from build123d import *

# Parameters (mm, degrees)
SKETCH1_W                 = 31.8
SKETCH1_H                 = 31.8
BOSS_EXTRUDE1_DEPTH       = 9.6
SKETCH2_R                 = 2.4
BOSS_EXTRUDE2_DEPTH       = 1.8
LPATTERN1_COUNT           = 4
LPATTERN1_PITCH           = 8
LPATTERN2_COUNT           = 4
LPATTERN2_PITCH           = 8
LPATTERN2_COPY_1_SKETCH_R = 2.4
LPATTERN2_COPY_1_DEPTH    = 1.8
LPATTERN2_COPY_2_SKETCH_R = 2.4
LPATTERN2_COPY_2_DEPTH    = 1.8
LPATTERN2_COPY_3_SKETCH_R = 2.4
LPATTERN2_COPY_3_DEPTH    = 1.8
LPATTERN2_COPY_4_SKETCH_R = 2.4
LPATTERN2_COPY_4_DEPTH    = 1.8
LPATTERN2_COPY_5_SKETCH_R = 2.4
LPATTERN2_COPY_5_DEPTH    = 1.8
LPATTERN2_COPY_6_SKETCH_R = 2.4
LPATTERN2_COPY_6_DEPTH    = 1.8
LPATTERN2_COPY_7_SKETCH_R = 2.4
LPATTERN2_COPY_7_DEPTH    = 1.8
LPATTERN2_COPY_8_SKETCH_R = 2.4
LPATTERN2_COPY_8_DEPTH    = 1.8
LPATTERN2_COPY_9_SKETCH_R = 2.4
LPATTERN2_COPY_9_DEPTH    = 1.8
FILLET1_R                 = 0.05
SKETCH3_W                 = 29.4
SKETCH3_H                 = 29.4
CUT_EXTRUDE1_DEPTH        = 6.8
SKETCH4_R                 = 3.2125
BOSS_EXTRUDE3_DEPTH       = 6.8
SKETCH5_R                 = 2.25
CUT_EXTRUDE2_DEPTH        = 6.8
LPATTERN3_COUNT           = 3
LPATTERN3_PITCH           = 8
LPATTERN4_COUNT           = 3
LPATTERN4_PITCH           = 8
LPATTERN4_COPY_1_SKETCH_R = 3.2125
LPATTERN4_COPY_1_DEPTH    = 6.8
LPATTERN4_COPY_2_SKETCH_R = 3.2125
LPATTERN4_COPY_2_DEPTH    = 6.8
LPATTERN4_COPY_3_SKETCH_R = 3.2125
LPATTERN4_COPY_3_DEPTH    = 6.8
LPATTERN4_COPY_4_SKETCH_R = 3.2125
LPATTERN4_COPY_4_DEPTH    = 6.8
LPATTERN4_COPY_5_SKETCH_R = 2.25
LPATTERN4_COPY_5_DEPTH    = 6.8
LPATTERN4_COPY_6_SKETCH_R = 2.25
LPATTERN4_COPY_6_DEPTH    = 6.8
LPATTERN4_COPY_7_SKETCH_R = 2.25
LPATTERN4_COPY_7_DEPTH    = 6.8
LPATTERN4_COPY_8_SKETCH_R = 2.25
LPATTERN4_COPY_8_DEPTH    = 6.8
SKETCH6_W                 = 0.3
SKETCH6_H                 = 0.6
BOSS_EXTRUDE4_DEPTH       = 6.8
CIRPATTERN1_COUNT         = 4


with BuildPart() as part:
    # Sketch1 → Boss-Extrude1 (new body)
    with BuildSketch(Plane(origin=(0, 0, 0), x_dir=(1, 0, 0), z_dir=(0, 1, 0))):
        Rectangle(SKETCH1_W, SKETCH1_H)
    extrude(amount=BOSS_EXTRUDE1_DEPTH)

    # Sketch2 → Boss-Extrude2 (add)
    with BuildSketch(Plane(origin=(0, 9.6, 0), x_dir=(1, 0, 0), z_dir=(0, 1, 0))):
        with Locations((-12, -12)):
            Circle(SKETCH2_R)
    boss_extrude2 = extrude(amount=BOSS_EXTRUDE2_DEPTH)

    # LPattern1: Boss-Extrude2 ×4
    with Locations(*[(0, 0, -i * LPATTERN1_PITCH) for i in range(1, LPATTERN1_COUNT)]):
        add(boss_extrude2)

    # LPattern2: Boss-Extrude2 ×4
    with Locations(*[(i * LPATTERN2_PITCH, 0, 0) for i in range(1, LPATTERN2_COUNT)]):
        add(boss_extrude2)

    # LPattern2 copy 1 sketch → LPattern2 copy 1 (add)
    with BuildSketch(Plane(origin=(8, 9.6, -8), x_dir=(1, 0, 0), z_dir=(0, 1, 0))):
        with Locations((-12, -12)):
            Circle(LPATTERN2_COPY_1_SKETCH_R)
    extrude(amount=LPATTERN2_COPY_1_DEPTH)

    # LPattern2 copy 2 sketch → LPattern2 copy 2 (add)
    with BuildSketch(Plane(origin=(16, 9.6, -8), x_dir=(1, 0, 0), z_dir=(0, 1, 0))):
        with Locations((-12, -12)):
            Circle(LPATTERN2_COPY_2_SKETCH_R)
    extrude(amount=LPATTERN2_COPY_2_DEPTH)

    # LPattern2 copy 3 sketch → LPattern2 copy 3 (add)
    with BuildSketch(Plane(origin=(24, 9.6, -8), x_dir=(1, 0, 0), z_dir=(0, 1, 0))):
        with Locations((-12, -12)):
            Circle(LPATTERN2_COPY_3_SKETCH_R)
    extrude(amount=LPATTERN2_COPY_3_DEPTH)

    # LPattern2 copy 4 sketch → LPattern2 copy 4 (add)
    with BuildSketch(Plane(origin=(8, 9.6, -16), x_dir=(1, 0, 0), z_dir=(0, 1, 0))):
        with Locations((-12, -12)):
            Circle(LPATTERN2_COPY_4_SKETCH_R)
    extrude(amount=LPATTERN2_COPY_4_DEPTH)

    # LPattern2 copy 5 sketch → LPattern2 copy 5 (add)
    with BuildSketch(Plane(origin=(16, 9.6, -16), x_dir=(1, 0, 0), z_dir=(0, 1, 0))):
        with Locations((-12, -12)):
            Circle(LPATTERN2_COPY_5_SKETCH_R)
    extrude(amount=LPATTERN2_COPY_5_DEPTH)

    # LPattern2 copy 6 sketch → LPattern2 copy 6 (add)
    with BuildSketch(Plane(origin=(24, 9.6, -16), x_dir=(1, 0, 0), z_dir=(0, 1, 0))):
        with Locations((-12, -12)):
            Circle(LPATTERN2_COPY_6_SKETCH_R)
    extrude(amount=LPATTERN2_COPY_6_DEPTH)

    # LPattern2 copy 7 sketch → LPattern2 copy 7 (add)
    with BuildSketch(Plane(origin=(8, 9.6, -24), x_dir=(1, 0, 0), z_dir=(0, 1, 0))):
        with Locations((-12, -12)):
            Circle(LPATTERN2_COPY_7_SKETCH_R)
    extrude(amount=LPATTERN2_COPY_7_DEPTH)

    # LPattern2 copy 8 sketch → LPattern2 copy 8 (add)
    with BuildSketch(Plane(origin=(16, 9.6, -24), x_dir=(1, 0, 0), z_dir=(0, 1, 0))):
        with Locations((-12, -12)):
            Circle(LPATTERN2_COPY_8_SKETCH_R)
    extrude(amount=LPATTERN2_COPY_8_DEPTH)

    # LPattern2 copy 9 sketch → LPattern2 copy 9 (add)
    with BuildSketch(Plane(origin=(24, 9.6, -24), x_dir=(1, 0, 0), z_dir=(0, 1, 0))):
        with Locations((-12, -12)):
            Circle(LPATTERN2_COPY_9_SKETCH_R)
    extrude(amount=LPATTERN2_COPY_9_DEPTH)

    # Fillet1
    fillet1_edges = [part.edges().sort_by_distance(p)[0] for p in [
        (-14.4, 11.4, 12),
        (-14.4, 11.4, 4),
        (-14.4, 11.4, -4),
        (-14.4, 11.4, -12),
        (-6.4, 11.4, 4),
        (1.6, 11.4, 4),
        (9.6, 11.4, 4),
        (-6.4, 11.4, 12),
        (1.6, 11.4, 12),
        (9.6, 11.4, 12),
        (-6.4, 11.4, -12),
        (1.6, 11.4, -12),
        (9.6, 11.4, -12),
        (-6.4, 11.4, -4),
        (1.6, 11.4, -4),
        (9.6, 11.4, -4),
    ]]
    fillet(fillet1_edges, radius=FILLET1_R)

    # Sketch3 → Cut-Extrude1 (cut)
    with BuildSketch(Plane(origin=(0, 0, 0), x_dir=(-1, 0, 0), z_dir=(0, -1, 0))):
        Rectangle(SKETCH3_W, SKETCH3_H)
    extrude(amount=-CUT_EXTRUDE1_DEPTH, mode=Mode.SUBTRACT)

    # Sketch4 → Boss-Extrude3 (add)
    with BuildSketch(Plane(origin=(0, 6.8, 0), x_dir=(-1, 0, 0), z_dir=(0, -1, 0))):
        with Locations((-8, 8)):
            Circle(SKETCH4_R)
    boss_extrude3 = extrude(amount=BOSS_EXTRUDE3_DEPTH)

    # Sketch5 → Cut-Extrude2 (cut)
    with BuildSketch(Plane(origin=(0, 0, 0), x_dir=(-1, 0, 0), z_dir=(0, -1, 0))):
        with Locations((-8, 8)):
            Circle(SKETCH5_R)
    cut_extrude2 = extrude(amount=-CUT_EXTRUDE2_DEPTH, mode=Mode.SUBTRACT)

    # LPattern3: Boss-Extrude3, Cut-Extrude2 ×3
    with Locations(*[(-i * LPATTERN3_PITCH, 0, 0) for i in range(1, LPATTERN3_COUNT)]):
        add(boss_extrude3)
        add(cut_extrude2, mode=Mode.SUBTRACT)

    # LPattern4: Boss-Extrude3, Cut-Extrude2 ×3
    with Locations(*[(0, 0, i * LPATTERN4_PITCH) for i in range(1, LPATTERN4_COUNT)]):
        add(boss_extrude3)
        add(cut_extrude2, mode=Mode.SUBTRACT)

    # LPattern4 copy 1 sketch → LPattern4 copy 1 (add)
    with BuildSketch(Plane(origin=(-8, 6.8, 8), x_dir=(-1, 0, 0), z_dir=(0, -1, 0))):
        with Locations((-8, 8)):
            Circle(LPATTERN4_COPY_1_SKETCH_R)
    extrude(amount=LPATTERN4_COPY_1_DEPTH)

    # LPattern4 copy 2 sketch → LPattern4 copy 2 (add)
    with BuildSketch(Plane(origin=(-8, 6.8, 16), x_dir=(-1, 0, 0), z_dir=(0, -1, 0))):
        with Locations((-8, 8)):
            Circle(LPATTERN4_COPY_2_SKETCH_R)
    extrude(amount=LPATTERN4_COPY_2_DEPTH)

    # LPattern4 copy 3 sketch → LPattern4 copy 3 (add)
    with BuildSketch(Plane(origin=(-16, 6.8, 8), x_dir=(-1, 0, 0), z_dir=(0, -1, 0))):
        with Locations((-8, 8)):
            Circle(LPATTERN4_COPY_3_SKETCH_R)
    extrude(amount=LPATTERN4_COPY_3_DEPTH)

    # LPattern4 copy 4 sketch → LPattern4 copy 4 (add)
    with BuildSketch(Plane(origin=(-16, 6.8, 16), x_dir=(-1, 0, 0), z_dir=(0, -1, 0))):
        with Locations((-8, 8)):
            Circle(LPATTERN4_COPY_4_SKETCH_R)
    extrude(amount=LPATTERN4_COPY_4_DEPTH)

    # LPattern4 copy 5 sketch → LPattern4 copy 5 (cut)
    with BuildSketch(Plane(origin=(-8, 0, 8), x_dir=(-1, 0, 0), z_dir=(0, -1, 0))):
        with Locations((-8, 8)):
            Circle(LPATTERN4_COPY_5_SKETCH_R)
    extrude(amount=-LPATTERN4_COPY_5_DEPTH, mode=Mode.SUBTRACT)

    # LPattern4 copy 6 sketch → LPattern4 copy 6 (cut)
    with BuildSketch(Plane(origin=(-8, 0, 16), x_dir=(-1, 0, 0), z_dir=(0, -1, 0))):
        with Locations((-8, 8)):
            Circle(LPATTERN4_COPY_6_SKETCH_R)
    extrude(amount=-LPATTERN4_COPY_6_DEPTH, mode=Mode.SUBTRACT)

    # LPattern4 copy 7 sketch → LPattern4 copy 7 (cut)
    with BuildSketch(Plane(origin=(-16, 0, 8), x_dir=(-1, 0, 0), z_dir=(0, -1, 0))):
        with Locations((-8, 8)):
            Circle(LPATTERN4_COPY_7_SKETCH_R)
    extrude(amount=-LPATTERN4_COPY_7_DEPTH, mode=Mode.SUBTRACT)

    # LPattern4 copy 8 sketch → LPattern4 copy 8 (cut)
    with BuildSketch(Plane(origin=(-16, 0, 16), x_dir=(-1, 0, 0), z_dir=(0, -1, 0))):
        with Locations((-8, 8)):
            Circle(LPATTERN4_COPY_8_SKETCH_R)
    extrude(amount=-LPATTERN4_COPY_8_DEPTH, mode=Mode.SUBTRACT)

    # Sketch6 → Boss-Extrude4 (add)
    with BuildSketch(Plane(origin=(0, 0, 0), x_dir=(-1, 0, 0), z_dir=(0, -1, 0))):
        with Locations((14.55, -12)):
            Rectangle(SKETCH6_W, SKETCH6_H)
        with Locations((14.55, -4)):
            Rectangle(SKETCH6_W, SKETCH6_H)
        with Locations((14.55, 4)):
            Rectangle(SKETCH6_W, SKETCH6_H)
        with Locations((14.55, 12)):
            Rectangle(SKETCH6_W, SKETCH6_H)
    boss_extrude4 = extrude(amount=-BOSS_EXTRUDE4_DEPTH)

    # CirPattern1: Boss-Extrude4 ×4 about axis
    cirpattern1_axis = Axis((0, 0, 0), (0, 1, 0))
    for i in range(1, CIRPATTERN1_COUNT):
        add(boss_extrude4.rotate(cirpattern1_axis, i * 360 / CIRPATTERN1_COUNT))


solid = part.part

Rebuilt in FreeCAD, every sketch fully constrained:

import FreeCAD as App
import Part
import Sketcher
from FreeCAD import Vector


def edges_at(feature, points):
    """Names of the edges that pass closest to the given points."""
    edges = feature.Shape.Edges
    near = lambda p: min(range(len(edges)), key=lambda i: edges[i].distToShape(Part.Vertex(*p))[0])
    return sorted({f"Edge{near(p) + 1}" for p in points})


def add_polygon(sketch, points):
    """Adds a closed chain of lines whose ends are joined by coincident constraints."""
    first, n = sketch.GeometryCount, len(points)
    for a, b in zip(points, points[1:] + points[:1]):
        sketch.addGeometry(Part.LineSegment(App.Vector(*a, 0), App.Vector(*b, 0)), False)
    for i in range(n):
        sketch.addConstraint(Sketcher.Constraint("Coincident", first + i, 2, first + (i + 1) % n, 1))

doc = App.newDocument("Part")
body = doc.addObject("PartDesign::Body", "Body")

sketch1 = body.newObject("Sketcher::SketchObject", "Sketch")
sketch1.AttachmentSupport = (doc.getObject("XZ_Plane"), [""])
sketch1.MapMode = "FlatFace"
add_polygon(sketch1, [(-15.9, -15.9), (-15.9, 15.9), (15.9, 15.9), (15.9, -15.9)])
sketch1.addConstraint(Sketcher.Constraint("Vertical", 0))
sketch1.addConstraint(Sketcher.Constraint("Horizontal", 1))
sketch1.addConstraint(Sketcher.Constraint("Vertical", 2))
sketch1.addConstraint(Sketcher.Constraint("Horizontal", 3))
sketch1.addConstraint(Sketcher.Constraint("Symmetric", 0, 2, 2, 2, -1, 1))
sketch1.addConstraint(Sketcher.Constraint("Equal", 3, 0))
sketch1.addConstraint(Sketcher.Constraint("DistanceX", 1, 1, 1, 2, 31.8))
pad1 = body.newObject("PartDesign::Pad", "Pad")
pad1.Profile = sketch1
pad1.Length = 9.6
pad1.Reversed = True

sketch2 = body.newObject("Sketcher::SketchObject", "Sketch001")
sketch2.AttachmentSupport = (doc.getObject("XZ_Plane"), [""])
sketch2.MapMode = "FlatFace"
sketch2.AttachmentOffset = App.Placement(Vector(0, 0, -9.6), App.Rotation())
sketch2.addGeometry(Part.Circle(Vector(-12, 12, 0), Vector(0, 0, 1), 2.4), False)
sketch2.addConstraint(Sketcher.Constraint("Diameter", 0, 4.8))
sketch2.addConstraint(Sketcher.Constraint("DistanceX", 0, 3, -1, 1, 12.0))
sketch2.addConstraint(Sketcher.Constraint("DistanceY", -1, 1, 0, 3, 12.0))
pad2 = body.newObject("PartDesign::Pad", "Pad001")
pad2.Profile = sketch2
pad2.Length = 1.8
pad2.Reversed = True
doc.recompute()

linearpattern = body.newObject("PartDesign::LinearPattern", "LinearPattern")
linearpattern.Originals = [pad2]
linearpattern.Direction = (doc.getObject("Z_Axis"), [""])
linearpattern.Mode = "offset"
linearpattern.Offset = 8
linearpattern.Occurrences = 4
linearpattern.Reversed = True
body.Tip = linearpattern
doc.recompute()

linearpattern2 = body.newObject("PartDesign::LinearPattern", "LinearPattern001")
linearpattern2.Originals = [pad2]
linearpattern2.Direction = (doc.getObject("X_Axis"), [""])
linearpattern2.Mode = "offset"
linearpattern2.Offset = 8
linearpattern2.Occurrences = 4
body.Tip = linearpattern2

sketch3 = body.newObject("Sketcher::SketchObject", "Sketch002")
sketch3.AttachmentSupport = (doc.getObject("XZ_Plane"), [""])
sketch3.MapMode = "FlatFace"
sketch3.AttachmentOffset = App.Placement(Vector(0, 0, -9.6), App.Rotation())
sketch3.addGeometry(Part.Circle(Vector(-4, 4, 0), Vector(0, 0, 1), 2.4), False)
sketch3.addConstraint(Sketcher.Constraint("Diameter", 0, 4.8))
sketch3.addConstraint(Sketcher.Constraint("DistanceX", 0, 3, -1, 1, 4.0))
sketch3.addConstraint(Sketcher.Constraint("DistanceY", -1, 1, 0, 3, 4.0))
pad3 = body.newObject("PartDesign::Pad", "Pad002")
pad3.Profile = sketch3
pad3.Length = 1.8
pad3.Reversed = True

sketch4 = body.newObject("Sketcher::SketchObject", "Sketch003")
sketch4.AttachmentSupport = (doc.getObject("XZ_Plane"), [""])
sketch4.MapMode = "FlatFace"
sketch4.AttachmentOffset = App.Placement(Vector(0, 0, -9.6), App.Rotation())
sketch4.addGeometry(Part.Circle(Vector(4, 4, 0), Vector(0, 0, 1), 2.4), False)
sketch4.addConstraint(Sketcher.Constraint("Diameter", 0, 4.8))
sketch4.addConstraint(Sketcher.Constraint("DistanceX", -1, 1, 0, 3, 4.0))
sketch4.addConstraint(Sketcher.Constraint("DistanceY", -1, 1, 0, 3, 4.0))
pad4 = body.newObject("PartDesign::Pad", "Pad003")
pad4.Profile = sketch4
pad4.Length = 1.8
pad4.Reversed = True

sketch5 = body.newObject("Sketcher::SketchObject", "Sketch004")
sketch5.AttachmentSupport = (doc.getObject("XZ_Plane"), [""])
sketch5.MapMode = "FlatFace"
sketch5.AttachmentOffset = App.Placement(Vector(0, 0, -9.6), App.Rotation())
sketch5.addGeometry(Part.Circle(Vector(12, 4, 0), Vector(0, 0, 1), 2.4), False)
sketch5.addConstraint(Sketcher.Constraint("Diameter", 0, 4.8))
sketch5.addConstraint(Sketcher.Constraint("DistanceX", -1, 1, 0, 3, 12.0))
sketch5.addConstraint(Sketcher.Constraint("DistanceY", -1, 1, 0, 3, 4.0))
pad5 = body.newObject("PartDesign::Pad", "Pad004")
pad5.Profile = sketch5
pad5.Length = 1.8
pad5.Reversed = True

sketch6 = body.newObject("Sketcher::SketchObject", "Sketch005")
sketch6.AttachmentSupport = (doc.getObject("XZ_Plane"), [""])
sketch6.MapMode = "FlatFace"
sketch6.AttachmentOffset = App.Placement(Vector(0, 0, -9.6), App.Rotation())
sketch6.addGeometry(Part.Circle(Vector(-4, -4, 0), Vector(0, 0, 1), 2.4), False)
sketch6.addConstraint(Sketcher.Constraint("Diameter", 0, 4.8))
sketch6.addConstraint(Sketcher.Constraint("DistanceX", 0, 3, -1, 1, 4.0))
sketch6.addConstraint(Sketcher.Constraint("DistanceY", 0, 3, -1, 1, 4.0))
pad6 = body.newObject("PartDesign::Pad", "Pad005")
pad6.Profile = sketch6
pad6.Length = 1.8
pad6.Reversed = True

sketch7 = body.newObject("Sketcher::SketchObject", "Sketch006")
sketch7.AttachmentSupport = (doc.getObject("XZ_Plane"), [""])
sketch7.MapMode = "FlatFace"
sketch7.AttachmentOffset = App.Placement(Vector(0, 0, -9.6), App.Rotation())
sketch7.addGeometry(Part.Circle(Vector(4, -4, 0), Vector(0, 0, 1), 2.4), False)
sketch7.addConstraint(Sketcher.Constraint("Diameter", 0, 4.8))
sketch7.addConstraint(Sketcher.Constraint("DistanceX", -1, 1, 0, 3, 4.0))
sketch7.addConstraint(Sketcher.Constraint("DistanceY", 0, 3, -1, 1, 4.0))
pad7 = body.newObject("PartDesign::Pad", "Pad006")
pad7.Profile = sketch7
pad7.Length = 1.8
pad7.Reversed = True

sketch8 = body.newObject("Sketcher::SketchObject", "Sketch007")
sketch8.AttachmentSupport = (doc.getObject("XZ_Plane"), [""])
sketch8.MapMode = "FlatFace"
sketch8.AttachmentOffset = App.Placement(Vector(0, 0, -9.6), App.Rotation())
sketch8.addGeometry(Part.Circle(Vector(12, -4, 0), Vector(0, 0, 1), 2.4), False)
sketch8.addConstraint(Sketcher.Constraint("Diameter", 0, 4.8))
sketch8.addConstraint(Sketcher.Constraint("DistanceX", -1, 1, 0, 3, 12.0))
sketch8.addConstraint(Sketcher.Constraint("DistanceY", 0, 3, -1, 1, 4.0))
pad8 = body.newObject("PartDesign::Pad", "Pad007")
pad8.Profile = sketch8
pad8.Length = 1.8
pad8.Reversed = True

sketch9 = body.newObject("Sketcher::SketchObject", "Sketch008")
sketch9.AttachmentSupport = (doc.getObject("XZ_Plane"), [""])
sketch9.MapMode = "FlatFace"
sketch9.AttachmentOffset = App.Placement(Vector(0, 0, -9.6), App.Rotation())
sketch9.addGeometry(Part.Circle(Vector(-4, -12, 0), Vector(0, 0, 1), 2.4), False)
sketch9.addConstraint(Sketcher.Constraint("Diameter", 0, 4.8))
sketch9.addConstraint(Sketcher.Constraint("DistanceX", 0, 3, -1, 1, 4.0))
sketch9.addConstraint(Sketcher.Constraint("DistanceY", 0, 3, -1, 1, 12.0))
pad9 = body.newObject("PartDesign::Pad", "Pad008")
pad9.Profile = sketch9
pad9.Length = 1.8
pad9.Reversed = True

sketch10 = body.newObject("Sketcher::SketchObject", "Sketch009")
sketch10.AttachmentSupport = (doc.getObject("XZ_Plane"), [""])
sketch10.MapMode = "FlatFace"
sketch10.AttachmentOffset = App.Placement(Vector(0, 0, -9.6), App.Rotation())
sketch10.addGeometry(Part.Circle(Vector(4, -12, 0), Vector(0, 0, 1), 2.4), False)
sketch10.addConstraint(Sketcher.Constraint("Diameter", 0, 4.8))
sketch10.addConstraint(Sketcher.Constraint("DistanceX", -1, 1, 0, 3, 4.0))
sketch10.addConstraint(Sketcher.Constraint("DistanceY", 0, 3, -1, 1, 12.0))
pad10 = body.newObject("PartDesign::Pad", "Pad009")
pad10.Profile = sketch10
pad10.Length = 1.8
pad10.Reversed = True

sketch11 = body.newObject("Sketcher::SketchObject", "Sketch010")
sketch11.AttachmentSupport = (doc.getObject("XZ_Plane"), [""])
sketch11.MapMode = "FlatFace"
sketch11.AttachmentOffset = App.Placement(Vector(0, 0, -9.6), App.Rotation())
sketch11.addGeometry(Part.Circle(Vector(12, -12, 0), Vector(0, 0, 1), 2.4), False)
sketch11.addConstraint(Sketcher.Constraint("Diameter", 0, 4.8))
sketch11.addConstraint(Sketcher.Constraint("DistanceX", -1, 1, 0, 3, 12.0))
sketch11.addConstraint(Sketcher.Constraint("DistanceY", 0, 3, -1, 1, 12.0))
pad11 = body.newObject("PartDesign::Pad", "Pad010")
pad11.Profile = sketch11
pad11.Length = 1.8
pad11.Reversed = True
doc.recompute()

fillet = body.newObject("PartDesign::Fillet", "Fillet")
fillet.Base = (pad11, edges_at(pad11, [
    (-14.4, 11.4, 12),
    (-14.4, 11.4, 4),
    (-14.4, 11.4, -4),
    (-14.4, 11.4, -12),
    (-6.4, 11.4, 4),
    (1.6, 11.4, 4),
    (9.6, 11.4, 4),
    (-6.4, 11.4, 12),
    (1.6, 11.4, 12),
    (9.6, 11.4, 12),
    (-6.4, 11.4, -12),
    (1.6, 11.4, -12),
    (9.6, 11.4, -12),
    (-6.4, 11.4, -4),
    (1.6, 11.4, -4),
    (9.6, 11.4, -4),
]))
fillet.Radius = 0.05

sketch12 = body.newObject("Sketcher::SketchObject", "Sketch011")
sketch12.AttachmentSupport = (doc.getObject("XZ_Plane"), [""])
sketch12.MapMode = "FlatFace"
add_polygon(sketch12, [(14.7, -14.7), (14.7, 14.7), (-14.7, 14.7), (-14.7, -14.7)])
sketch12.addConstraint(Sketcher.Constraint("Vertical", 0))
sketch12.addConstraint(Sketcher.Constraint("Horizontal", 1))
sketch12.addConstraint(Sketcher.Constraint("Vertical", 2))
sketch12.addConstraint(Sketcher.Constraint("Horizontal", 3))
sketch12.addConstraint(Sketcher.Constraint("Symmetric", 0, 2, 2, 2, -1, 1))
sketch12.addConstraint(Sketcher.Constraint("Equal", 3, 0))
sketch12.addConstraint(Sketcher.Constraint("DistanceX", 1, 2, 1, 1, 29.4))
pocket1 = body.newObject("PartDesign::Pocket", "Pocket")
pocket1.Profile = sketch12
pocket1.Length = 6.8

sketch13 = body.newObject("Sketcher::SketchObject", "Sketch012")
sketch13.AttachmentSupport = (doc.getObject("XZ_Plane"), [""])
sketch13.MapMode = "FlatFace"
sketch13.AttachmentOffset = App.Placement(Vector(0, 0, -6.8), App.Rotation())
sketch13.addGeometry(Part.Circle(Vector(8, -8, 0), Vector(0, 0, 1), 3.2125), False)
sketch13.addConstraint(Sketcher.Constraint("Diameter", 0, 6.425))
sketch13.addConstraint(Sketcher.Constraint("DistanceX", -1, 1, 0, 3, 8.0))
sketch13.addConstraint(Sketcher.Constraint("DistanceY", 0, 3, -1, 1, 8.0))
pad12 = body.newObject("PartDesign::Pad", "Pad011")
pad12.Profile = sketch13
pad12.Length = 6.8

sketch14 = body.newObject("Sketcher::SketchObject", "Sketch013")
sketch14.AttachmentSupport = (doc.getObject("XZ_Plane"), [""])
sketch14.MapMode = "FlatFace"
sketch14.addGeometry(Part.Circle(Vector(8, -8, 0), Vector(0, 0, 1), 2.25), False)
sketch14.addConstraint(Sketcher.Constraint("Diameter", 0, 4.5))
sketch14.addConstraint(Sketcher.Constraint("DistanceX", -1, 1, 0, 3, 8.0))
sketch14.addConstraint(Sketcher.Constraint("DistanceY", 0, 3, -1, 1, 8.0))
pocket2 = body.newObject("PartDesign::Pocket", "Pocket001")
pocket2.Profile = sketch14
pocket2.Length = 6.8
doc.recompute()

linearpattern3 = body.newObject("PartDesign::LinearPattern", "LinearPattern002")
linearpattern3.Originals = [pad12, pocket2]
linearpattern3.Direction = (doc.getObject("X_Axis"), [""])
linearpattern3.Mode = "offset"
linearpattern3.Offset = 8
linearpattern3.Occurrences = 3
linearpattern3.Reversed = True
body.Tip = linearpattern3
doc.recompute()

linearpattern4 = body.newObject("PartDesign::LinearPattern", "LinearPattern003")
linearpattern4.Originals = [pad12, pocket2]
linearpattern4.Direction = (doc.getObject("Z_Axis"), [""])
linearpattern4.Mode = "offset"
linearpattern4.Offset = 8
linearpattern4.Occurrences = 3
body.Tip = linearpattern4

sketch15 = body.newObject("Sketcher::SketchObject", "Sketch014")
sketch15.AttachmentSupport = (doc.getObject("XZ_Plane"), [""])
sketch15.MapMode = "FlatFace"
sketch15.AttachmentOffset = App.Placement(Vector(0, 0, -6.8), App.Rotation())
sketch15.addGeometry(Part.Circle(Vector(0, 0, 0), Vector(0, 0, 1), 3.2125), False)
sketch15.addConstraint(Sketcher.Constraint("Coincident", 0, 3, -1, 1))
sketch15.addConstraint(Sketcher.Constraint("Diameter", 0, 6.425))
pad13 = body.newObject("PartDesign::Pad", "Pad012")
pad13.Profile = sketch15
pad13.Length = 6.8

sketch16 = body.newObject("Sketcher::SketchObject", "Sketch015")
sketch16.AttachmentSupport = (doc.getObject("XZ_Plane"), [""])
sketch16.MapMode = "FlatFace"
sketch16.AttachmentOffset = App.Placement(Vector(0, 0, -6.8), App.Rotation())
sketch16.addGeometry(Part.Circle(Vector(0, 8, 0), Vector(0, 0, 1), 3.2125), False)
sketch16.addConstraint(Sketcher.Constraint("PointOnObject", 0, 3, -2))
sketch16.addConstraint(Sketcher.Constraint("Diameter", 0, 6.425))
sketch16.addConstraint(Sketcher.Constraint("DistanceY", -1, 1, 0, 3, 8.0))
pad14 = body.newObject("PartDesign::Pad", "Pad013")
pad14.Profile = sketch16
pad14.Length = 6.8

sketch17 = body.newObject("Sketcher::SketchObject", "Sketch016")
sketch17.AttachmentSupport = (doc.getObject("XZ_Plane"), [""])
sketch17.MapMode = "FlatFace"
sketch17.AttachmentOffset = App.Placement(Vector(0, 0, -6.8), App.Rotation())
sketch17.addGeometry(Part.Circle(Vector(-8, 0, 0), Vector(0, 0, 1), 3.2125), False)
sketch17.addConstraint(Sketcher.Constraint("PointOnObject", 0, 3, -1))
sketch17.addConstraint(Sketcher.Constraint("Diameter", 0, 6.425))
sketch17.addConstraint(Sketcher.Constraint("DistanceX", 0, 3, -1, 1, 8.0))
pad15 = body.newObject("PartDesign::Pad", "Pad014")
pad15.Profile = sketch17
pad15.Length = 6.8

sketch18 = body.newObject("Sketcher::SketchObject", "Sketch017")
sketch18.AttachmentSupport = (doc.getObject("XZ_Plane"), [""])
sketch18.MapMode = "FlatFace"
sketch18.AttachmentOffset = App.Placement(Vector(0, 0, -6.8), App.Rotation())
sketch18.addGeometry(Part.Circle(Vector(-8, 8, 0), Vector(0, 0, 1), 3.2125), False)
sketch18.addConstraint(Sketcher.Constraint("Diameter", 0, 6.425))
sketch18.addConstraint(Sketcher.Constraint("DistanceX", 0, 3, -1, 1, 8.0))
sketch18.addConstraint(Sketcher.Constraint("DistanceY", -1, 1, 0, 3, 8.0))
pad16 = body.newObject("PartDesign::Pad", "Pad015")
pad16.Profile = sketch18
pad16.Length = 6.8

sketch19 = body.newObject("Sketcher::SketchObject", "Sketch018")
sketch19.AttachmentSupport = (doc.getObject("XZ_Plane"), [""])
sketch19.MapMode = "FlatFace"
sketch19.addGeometry(Part.Circle(Vector(0, 0, 0), Vector(0, 0, 1), 2.25), False)
sketch19.addConstraint(Sketcher.Constraint("Coincident", 0, 3, -1, 1))
sketch19.addConstraint(Sketcher.Constraint("Diameter", 0, 4.5))
pocket3 = body.newObject("PartDesign::Pocket", "Pocket002")
pocket3.Profile = sketch19
pocket3.Length = 6.8

sketch20 = body.newObject("Sketcher::SketchObject", "Sketch019")
sketch20.AttachmentSupport = (doc.getObject("XZ_Plane"), [""])
sketch20.MapMode = "FlatFace"
sketch20.addGeometry(Part.Circle(Vector(0, 8, 0), Vector(0, 0, 1), 2.25), False)
sketch20.addConstraint(Sketcher.Constraint("PointOnObject", 0, 3, -2))
sketch20.addConstraint(Sketcher.Constraint("Diameter", 0, 4.5))
sketch20.addConstraint(Sketcher.Constraint("DistanceY", -1, 1, 0, 3, 8.0))
pocket4 = body.newObject("PartDesign::Pocket", "Pocket003")
pocket4.Profile = sketch20
pocket4.Length = 6.8

sketch21 = body.newObject("Sketcher::SketchObject", "Sketch020")
sketch21.AttachmentSupport = (doc.getObject("XZ_Plane"), [""])
sketch21.MapMode = "FlatFace"
sketch21.addGeometry(Part.Circle(Vector(-8, 0, 0), Vector(0, 0, 1), 2.25), False)
sketch21.addConstraint(Sketcher.Constraint("PointOnObject", 0, 3, -1))
sketch21.addConstraint(Sketcher.Constraint("Diameter", 0, 4.5))
sketch21.addConstraint(Sketcher.Constraint("DistanceX", 0, 3, -1, 1, 8.0))
pocket5 = body.newObject("PartDesign::Pocket", "Pocket004")
pocket5.Profile = sketch21
pocket5.Length = 6.8

sketch22 = body.newObject("Sketcher::SketchObject", "Sketch021")
sketch22.AttachmentSupport = (doc.getObject("XZ_Plane"), [""])
sketch22.MapMode = "FlatFace"
sketch22.addGeometry(Part.Circle(Vector(-8, 8, 0), Vector(0, 0, 1), 2.25), False)
sketch22.addConstraint(Sketcher.Constraint("Diameter", 0, 4.5))
sketch22.addConstraint(Sketcher.Constraint("DistanceX", 0, 3, -1, 1, 8.0))
sketch22.addConstraint(Sketcher.Constraint("DistanceY", -1, 1, 0, 3, 8.0))
pocket6 = body.newObject("PartDesign::Pocket", "Pocket005")
pocket6.Profile = sketch22
pocket6.Length = 6.8

sketch23 = body.newObject("Sketcher::SketchObject", "Sketch022")
sketch23.AttachmentSupport = (doc.getObject("XZ_Plane"), [""])
sketch23.MapMode = "FlatFace"
add_polygon(sketch23, [(-14.4, 11.7), (-14.4, 12.3), (-14.7, 12.3), (-14.7, 11.7)])
add_polygon(sketch23, [(-14.4, 3.7), (-14.4, 4.3), (-14.7, 4.3), (-14.7, 3.7)])
add_polygon(sketch23, [(-14.4, -4.3), (-14.4, -3.7), (-14.7, -3.7), (-14.7, -4.3)])
add_polygon(sketch23, [(-14.4, -12.3), (-14.4, -11.7), (-14.7, -11.7), (-14.7, -12.3)])
sketch23.addConstraint(Sketcher.Constraint("Vertical", 0))
sketch23.addConstraint(Sketcher.Constraint("Horizontal", 1))
sketch23.addConstraint(Sketcher.Constraint("Vertical", 2))
sketch23.addConstraint(Sketcher.Constraint("Horizontal", 3))
sketch23.addConstraint(Sketcher.Constraint("Vertical", 4))
sketch23.addConstraint(Sketcher.Constraint("Horizontal", 5))
sketch23.addConstraint(Sketcher.Constraint("Vertical", 6))
sketch23.addConstraint(Sketcher.Constraint("Horizontal", 7))
sketch23.addConstraint(Sketcher.Constraint("Vertical", 8))
sketch23.addConstraint(Sketcher.Constraint("Horizontal", 9))
sketch23.addConstraint(Sketcher.Constraint("Vertical", 10))
sketch23.addConstraint(Sketcher.Constraint("Horizontal", 11))
sketch23.addConstraint(Sketcher.Constraint("Vertical", 12))
sketch23.addConstraint(Sketcher.Constraint("Horizontal", 13))
sketch23.addConstraint(Sketcher.Constraint("Vertical", 14))
sketch23.addConstraint(Sketcher.Constraint("Horizontal", 15))
sketch23.addConstraint(Sketcher.Constraint("Symmetric", 7, 2, 8, 2, -1))
sketch23.addConstraint(Sketcher.Constraint("Symmetric", 5, 2, 10, 2, -1))
sketch23.addConstraint(Sketcher.Constraint("Symmetric", 3, 2, 12, 2, -1))
sketch23.addConstraint(Sketcher.Constraint("Symmetric", 1, 2, 14, 2, -1))
sketch23.addConstraint(Sketcher.Constraint("Vertical", 3, 2, 4, 2))
sketch23.addConstraint(Sketcher.Constraint("Vertical", 2, 2, 5, 2))
sketch23.addConstraint(Sketcher.Constraint("Equal", 2, 4))
sketch23.addConstraint(Sketcher.Constraint("DistanceX", 1, 2, 1, 1, 0.3))
sketch23.addConstraint(Sketcher.Constraint("DistanceY", 0, 1, 0, 2, 0.6))
sketch23.addConstraint(Sketcher.Constraint("DistanceY", 4, 2, 0, 2, 8.0))
sketch23.addConstraint(Sketcher.Constraint("DistanceY", 8, 2, 4, 2, 8.0))
sketch23.addConstraint(Sketcher.Constraint("DistanceX", 0, 2, -1, 1, 14.4))
pad17 = body.newObject("PartDesign::Pad", "Pad016")
pad17.Profile = sketch23
pad17.Length = 6.8
pad17.Reversed = True
doc.recompute()

polarpattern = body.newObject("PartDesign::PolarPattern", "PolarPattern")
polarpattern.Originals = [pad17]
polarpattern.Axis = (doc.getObject("Y_Axis"), [""])
polarpattern.Angle = 360
polarpattern.Occurrences = 4
body.Tip = polarpattern

doc.recompute()
